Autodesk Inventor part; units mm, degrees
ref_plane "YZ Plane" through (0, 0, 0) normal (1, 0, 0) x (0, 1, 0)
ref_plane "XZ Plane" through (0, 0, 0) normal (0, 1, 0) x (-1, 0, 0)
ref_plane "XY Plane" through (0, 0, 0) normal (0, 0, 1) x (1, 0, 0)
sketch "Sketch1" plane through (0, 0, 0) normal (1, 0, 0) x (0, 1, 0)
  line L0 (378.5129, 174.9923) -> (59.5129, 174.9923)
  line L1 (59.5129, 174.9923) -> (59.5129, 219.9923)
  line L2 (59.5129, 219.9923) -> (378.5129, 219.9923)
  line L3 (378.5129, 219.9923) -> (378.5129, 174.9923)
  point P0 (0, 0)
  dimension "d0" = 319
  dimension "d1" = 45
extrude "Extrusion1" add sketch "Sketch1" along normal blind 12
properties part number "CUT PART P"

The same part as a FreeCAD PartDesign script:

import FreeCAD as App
import Part
import Sketcher

V = App.Vector
Q = App.Units.Quantity

doc = App.newDocument("Part")
body = doc.addObject("PartDesign::Body", "Body")

# Sketch on YZ plane
sketch1 = body.newObject("Sketcher::SketchObject", "Sketch")
sketch1.AttachmentSupport = (doc.getObject("YZ_Plane"), [""])
sketch1.MapMode = "FlatFace"
sketch1.addGeometry([
    Part.LineSegment(V(60, 175, 0), V(379, 175, 0)),
    Part.LineSegment(V(379, 175, 0), V(379, 220, 0)),
    Part.LineSegment(V(379, 220, 0), V(60, 220, 0)),
    Part.LineSegment(V(60, 220, 0), V(60, 175, 0)),
], False)
sketch1.addConstraint([
    Sketcher.Constraint("Coincident", 0, 2, 1, 1),
    Sketcher.Constraint("Coincident", 1, 2, 2, 1),
    Sketcher.Constraint("Coincident", 2, 2, 3, 1),
    Sketcher.Constraint("Coincident", 3, 2, 0, 1),
    Sketcher.Constraint("Horizontal", 0),
    Sketcher.Constraint("Vertical", 1),
    Sketcher.Constraint("Horizontal", 2),
    Sketcher.Constraint("Vertical", 3),
    Sketcher.Constraint("DistanceX", 0, 1, 0, 2, Q("319 mm")),
    Sketcher.Constraint("DistanceY", 1, 1, 1, 2, Q("45 mm")),
    Sketcher.Constraint("DistanceX", -1, 1, 0, 2, Q("378.513 mm")),
    Sketcher.Constraint("DistanceY", -1, 1, 0, 2, Q("174.9923 mm")),
])
pad1 = body.newObject("PartDesign::Pad", "Pad")
pad1.Profile = sketch1
pad1.Length = 12

doc.recompute()
